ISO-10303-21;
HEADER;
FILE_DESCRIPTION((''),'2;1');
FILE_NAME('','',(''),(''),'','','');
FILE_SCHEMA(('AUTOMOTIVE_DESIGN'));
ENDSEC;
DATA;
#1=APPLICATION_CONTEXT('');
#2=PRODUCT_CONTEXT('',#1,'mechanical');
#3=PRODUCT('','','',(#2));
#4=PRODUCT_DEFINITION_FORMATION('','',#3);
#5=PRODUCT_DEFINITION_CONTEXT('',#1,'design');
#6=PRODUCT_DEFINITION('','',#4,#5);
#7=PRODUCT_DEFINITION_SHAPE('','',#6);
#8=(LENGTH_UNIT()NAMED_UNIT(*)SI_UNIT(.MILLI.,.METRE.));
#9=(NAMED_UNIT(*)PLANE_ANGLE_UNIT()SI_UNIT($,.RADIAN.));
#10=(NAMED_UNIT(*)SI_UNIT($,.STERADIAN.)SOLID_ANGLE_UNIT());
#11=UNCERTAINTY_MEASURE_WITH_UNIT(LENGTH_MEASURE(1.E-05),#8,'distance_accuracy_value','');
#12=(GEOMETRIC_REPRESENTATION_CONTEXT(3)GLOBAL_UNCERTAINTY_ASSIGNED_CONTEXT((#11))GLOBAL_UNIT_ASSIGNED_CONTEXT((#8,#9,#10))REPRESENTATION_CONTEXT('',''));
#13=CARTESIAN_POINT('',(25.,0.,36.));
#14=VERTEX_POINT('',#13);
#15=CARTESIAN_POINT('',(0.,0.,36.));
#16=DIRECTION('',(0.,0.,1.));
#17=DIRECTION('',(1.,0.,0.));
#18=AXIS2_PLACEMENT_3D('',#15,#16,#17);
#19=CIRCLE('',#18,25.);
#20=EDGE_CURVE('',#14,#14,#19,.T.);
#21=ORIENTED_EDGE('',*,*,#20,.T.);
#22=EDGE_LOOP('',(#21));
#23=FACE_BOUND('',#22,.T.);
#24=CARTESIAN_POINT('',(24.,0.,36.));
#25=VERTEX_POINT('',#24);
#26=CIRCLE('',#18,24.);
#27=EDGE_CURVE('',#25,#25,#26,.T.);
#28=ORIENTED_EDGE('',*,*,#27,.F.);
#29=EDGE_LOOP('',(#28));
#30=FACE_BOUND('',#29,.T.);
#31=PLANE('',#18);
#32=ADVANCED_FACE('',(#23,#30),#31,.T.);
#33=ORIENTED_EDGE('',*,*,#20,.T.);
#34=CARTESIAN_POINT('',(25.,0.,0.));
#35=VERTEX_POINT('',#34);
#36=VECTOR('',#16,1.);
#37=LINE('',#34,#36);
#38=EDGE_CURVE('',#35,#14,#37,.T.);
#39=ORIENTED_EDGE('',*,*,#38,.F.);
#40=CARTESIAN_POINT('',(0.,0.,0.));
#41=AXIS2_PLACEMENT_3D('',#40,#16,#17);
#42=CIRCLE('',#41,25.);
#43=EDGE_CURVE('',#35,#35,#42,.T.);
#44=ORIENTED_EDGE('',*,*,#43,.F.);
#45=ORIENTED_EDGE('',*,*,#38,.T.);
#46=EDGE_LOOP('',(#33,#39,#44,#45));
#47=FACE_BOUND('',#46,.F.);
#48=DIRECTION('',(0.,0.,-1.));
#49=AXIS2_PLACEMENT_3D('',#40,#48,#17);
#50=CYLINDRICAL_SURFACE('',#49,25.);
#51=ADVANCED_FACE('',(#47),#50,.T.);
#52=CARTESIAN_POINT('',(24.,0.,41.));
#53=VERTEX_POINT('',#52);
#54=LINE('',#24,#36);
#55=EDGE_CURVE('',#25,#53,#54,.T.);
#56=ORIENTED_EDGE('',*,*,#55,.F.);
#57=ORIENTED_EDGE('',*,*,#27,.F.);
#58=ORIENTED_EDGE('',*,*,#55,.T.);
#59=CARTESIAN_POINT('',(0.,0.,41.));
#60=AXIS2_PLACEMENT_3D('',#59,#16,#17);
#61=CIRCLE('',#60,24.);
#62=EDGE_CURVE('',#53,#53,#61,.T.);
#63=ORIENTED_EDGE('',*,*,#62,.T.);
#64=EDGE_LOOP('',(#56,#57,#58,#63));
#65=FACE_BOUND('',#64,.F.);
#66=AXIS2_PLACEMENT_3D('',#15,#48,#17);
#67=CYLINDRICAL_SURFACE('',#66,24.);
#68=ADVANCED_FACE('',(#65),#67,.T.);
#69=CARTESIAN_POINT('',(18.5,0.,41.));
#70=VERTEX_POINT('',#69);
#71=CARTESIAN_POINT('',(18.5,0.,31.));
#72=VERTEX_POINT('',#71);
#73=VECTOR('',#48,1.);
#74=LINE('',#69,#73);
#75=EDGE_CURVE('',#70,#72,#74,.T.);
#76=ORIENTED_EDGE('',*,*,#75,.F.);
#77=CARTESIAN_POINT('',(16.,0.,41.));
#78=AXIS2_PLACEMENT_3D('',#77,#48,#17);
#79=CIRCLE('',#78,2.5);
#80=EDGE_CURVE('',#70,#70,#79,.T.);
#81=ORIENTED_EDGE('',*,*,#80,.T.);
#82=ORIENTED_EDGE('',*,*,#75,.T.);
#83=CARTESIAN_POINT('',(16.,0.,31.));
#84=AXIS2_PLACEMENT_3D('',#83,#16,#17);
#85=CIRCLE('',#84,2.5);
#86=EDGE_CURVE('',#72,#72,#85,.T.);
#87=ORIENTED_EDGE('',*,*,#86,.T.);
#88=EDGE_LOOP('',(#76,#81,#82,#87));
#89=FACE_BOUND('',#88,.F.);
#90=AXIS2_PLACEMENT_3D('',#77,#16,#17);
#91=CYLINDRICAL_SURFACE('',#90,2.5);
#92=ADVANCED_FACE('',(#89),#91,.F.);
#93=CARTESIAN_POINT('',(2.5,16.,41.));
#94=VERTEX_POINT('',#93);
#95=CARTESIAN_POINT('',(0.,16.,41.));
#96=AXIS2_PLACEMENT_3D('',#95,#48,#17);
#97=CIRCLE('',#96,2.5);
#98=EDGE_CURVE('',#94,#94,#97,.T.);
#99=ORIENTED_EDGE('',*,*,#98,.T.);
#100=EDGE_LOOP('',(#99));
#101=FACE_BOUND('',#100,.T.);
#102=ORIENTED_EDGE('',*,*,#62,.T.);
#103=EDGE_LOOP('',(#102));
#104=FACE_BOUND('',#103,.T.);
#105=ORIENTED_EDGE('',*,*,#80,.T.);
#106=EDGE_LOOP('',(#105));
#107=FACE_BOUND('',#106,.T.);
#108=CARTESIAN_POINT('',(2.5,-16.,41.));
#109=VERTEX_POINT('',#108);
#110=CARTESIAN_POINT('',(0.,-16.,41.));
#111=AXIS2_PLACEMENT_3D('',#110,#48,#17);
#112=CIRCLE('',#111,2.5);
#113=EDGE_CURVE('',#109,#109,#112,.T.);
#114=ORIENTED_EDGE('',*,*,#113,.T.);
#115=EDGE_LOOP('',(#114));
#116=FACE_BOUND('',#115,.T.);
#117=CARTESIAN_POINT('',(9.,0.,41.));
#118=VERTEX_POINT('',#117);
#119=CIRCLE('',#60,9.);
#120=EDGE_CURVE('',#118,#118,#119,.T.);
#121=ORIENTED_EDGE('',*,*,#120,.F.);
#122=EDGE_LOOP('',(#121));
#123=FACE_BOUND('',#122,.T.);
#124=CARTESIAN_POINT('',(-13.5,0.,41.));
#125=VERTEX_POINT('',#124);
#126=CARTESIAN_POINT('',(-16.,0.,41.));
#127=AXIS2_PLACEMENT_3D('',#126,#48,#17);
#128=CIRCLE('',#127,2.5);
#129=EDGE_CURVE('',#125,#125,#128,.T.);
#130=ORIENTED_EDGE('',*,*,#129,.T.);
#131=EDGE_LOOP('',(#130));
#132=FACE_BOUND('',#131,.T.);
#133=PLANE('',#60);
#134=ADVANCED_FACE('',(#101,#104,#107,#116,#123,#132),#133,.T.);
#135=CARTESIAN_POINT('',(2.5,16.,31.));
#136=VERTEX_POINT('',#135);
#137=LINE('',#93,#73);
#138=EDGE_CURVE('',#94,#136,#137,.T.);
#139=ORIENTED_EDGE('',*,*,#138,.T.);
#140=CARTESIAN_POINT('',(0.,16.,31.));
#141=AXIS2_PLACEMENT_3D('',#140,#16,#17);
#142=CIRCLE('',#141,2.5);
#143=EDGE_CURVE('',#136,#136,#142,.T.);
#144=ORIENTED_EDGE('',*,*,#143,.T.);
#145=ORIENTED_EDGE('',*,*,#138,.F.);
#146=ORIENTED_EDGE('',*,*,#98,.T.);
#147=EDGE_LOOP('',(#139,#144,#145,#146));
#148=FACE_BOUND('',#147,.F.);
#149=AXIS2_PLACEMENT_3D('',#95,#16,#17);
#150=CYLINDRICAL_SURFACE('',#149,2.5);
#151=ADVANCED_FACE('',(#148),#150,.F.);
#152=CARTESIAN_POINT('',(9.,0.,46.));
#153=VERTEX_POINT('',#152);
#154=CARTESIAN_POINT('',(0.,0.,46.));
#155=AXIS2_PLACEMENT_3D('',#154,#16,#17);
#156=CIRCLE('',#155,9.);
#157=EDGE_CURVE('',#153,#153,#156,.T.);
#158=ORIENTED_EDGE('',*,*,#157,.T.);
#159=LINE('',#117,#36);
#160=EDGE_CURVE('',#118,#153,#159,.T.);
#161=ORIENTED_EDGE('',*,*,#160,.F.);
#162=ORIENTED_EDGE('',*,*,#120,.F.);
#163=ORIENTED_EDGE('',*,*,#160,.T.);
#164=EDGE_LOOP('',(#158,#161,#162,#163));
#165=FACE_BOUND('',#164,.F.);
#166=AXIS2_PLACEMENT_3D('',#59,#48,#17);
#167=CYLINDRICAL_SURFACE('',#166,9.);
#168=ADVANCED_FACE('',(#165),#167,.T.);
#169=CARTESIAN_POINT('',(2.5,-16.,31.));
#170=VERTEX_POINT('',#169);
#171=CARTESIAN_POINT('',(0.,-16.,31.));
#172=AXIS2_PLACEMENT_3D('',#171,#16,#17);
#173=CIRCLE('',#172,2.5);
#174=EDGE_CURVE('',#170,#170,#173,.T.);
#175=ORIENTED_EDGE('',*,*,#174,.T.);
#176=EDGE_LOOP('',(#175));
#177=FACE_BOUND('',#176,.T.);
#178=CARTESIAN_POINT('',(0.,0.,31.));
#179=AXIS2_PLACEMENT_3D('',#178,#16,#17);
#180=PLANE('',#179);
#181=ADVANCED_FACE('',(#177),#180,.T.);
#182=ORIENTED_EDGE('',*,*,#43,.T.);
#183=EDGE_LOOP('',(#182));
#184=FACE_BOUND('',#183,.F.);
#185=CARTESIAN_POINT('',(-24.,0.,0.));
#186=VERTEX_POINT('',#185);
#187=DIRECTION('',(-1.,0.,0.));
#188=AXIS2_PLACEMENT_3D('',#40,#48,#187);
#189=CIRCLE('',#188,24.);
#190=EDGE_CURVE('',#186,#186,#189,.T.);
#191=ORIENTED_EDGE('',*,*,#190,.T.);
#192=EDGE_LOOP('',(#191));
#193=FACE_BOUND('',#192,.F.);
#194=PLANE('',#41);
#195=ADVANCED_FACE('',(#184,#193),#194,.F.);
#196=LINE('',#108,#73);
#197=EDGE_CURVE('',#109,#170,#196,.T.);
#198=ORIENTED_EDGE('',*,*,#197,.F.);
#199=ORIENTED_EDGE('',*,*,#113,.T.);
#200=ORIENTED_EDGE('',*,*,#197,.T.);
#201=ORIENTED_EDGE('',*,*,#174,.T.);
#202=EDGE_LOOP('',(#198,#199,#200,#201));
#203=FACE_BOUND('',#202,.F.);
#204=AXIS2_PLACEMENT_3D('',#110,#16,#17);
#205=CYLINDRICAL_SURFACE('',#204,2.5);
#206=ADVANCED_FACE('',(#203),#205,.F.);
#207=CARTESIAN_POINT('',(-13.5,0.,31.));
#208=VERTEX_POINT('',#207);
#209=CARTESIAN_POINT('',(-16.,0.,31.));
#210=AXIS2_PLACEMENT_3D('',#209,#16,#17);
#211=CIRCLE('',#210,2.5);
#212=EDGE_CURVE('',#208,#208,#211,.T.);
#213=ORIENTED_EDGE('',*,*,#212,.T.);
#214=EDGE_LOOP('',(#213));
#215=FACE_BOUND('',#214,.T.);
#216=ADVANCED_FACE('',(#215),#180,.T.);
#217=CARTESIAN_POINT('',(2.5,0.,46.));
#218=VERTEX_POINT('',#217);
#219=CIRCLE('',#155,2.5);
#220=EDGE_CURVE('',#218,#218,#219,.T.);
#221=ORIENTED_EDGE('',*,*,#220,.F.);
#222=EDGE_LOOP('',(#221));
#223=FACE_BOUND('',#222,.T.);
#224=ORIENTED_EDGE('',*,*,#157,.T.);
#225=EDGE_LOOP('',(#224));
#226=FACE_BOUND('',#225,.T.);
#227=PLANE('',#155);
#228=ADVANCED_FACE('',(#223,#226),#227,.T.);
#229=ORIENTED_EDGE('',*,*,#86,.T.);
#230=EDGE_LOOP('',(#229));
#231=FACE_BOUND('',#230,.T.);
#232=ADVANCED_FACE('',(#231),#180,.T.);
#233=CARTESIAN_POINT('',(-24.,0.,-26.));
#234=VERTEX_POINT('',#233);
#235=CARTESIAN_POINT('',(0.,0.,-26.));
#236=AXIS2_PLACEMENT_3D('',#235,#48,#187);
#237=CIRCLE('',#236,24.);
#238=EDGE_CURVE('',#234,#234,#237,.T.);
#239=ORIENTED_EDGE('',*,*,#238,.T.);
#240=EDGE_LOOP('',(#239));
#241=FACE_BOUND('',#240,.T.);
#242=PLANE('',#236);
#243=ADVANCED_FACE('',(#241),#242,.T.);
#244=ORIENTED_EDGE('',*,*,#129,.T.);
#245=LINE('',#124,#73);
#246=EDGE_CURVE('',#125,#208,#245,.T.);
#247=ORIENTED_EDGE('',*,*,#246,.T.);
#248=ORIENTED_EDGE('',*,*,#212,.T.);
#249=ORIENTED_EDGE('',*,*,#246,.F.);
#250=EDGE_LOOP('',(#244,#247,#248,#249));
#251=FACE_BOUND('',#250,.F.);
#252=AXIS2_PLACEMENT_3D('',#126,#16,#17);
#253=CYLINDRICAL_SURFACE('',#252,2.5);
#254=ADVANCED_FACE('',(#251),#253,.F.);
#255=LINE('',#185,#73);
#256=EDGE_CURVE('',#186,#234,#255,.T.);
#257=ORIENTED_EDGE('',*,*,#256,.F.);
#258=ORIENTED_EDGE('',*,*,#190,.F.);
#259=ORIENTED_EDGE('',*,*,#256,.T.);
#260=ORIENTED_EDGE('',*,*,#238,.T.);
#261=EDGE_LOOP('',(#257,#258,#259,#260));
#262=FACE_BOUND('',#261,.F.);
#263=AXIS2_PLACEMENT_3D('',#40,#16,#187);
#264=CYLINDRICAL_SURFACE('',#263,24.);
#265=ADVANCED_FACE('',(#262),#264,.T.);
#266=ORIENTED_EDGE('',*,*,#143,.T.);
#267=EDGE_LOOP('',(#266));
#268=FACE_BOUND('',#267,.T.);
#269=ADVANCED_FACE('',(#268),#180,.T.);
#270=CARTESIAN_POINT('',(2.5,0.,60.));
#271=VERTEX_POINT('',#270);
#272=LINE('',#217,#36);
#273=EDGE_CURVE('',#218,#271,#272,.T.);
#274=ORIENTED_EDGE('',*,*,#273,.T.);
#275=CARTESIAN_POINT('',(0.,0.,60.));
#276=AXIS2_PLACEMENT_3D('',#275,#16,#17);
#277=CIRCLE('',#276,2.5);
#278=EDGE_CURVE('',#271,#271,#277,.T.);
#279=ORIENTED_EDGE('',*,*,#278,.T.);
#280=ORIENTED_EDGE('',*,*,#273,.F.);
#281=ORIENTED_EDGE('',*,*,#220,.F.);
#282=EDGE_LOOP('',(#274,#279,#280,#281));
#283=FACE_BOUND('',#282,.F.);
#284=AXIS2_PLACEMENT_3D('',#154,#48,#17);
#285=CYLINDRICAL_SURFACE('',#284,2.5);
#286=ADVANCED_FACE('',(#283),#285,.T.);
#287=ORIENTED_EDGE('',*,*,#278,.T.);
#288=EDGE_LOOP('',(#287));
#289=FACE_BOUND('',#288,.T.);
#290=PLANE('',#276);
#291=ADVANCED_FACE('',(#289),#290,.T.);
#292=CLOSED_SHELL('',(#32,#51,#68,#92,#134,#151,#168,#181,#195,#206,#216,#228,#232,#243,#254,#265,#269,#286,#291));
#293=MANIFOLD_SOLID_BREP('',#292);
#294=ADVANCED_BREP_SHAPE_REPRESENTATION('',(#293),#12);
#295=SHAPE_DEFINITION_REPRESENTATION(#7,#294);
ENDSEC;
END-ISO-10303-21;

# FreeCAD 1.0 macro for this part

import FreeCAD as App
import Part
import Sketcher

V = App.Vector

doc = App.newDocument("Part")
params = doc.addObject("Spreadsheet::Sheet", "Params")
for row, (alias, value) in enumerate([
    ("sketch1_diameter", "50 mm"),
    ("pad1_length", "36 mm"),
    ("sketch2_diameter", "48 mm"),
    ("pad2_length", "5 mm"),
    ("sketch3_diameter", "48 mm"),
    ("pad3_length", "26 mm"),
    ("sketch4_diameter", "18 mm"),
    ("pad4_length", "5 mm"),
    ("sketch5_diameter", "5 mm"),
    ("pad5_length", "14 mm"),
    ("sketch6_diameter", "5 mm"),
    ("pocket1_length", "10 mm"),
], start=1):
    params.set(f"A{row}", alias)
    params.set(f"B{row}", "=" + value)
    params.setAlias(f"B{row}", alias)

body = doc.addObject("PartDesign::Body", "Body")

# Sketch on XY plane
sketch1 = body.newObject("Sketcher::SketchObject", "Sketch")
sketch1.AttachmentSupport = (doc.getObject("XY_Plane"), [""])
sketch1.MapMode = "FlatFace"
sketch1.addGeometry(Part.Circle(V(0, 0, 0), V(0, 0, 1), 25), False)
sketch1.addConstraint([
    Sketcher.Constraint("Coincident", 0, 3, -1, 1),
    Sketcher.Constraint("Diameter", 0, 50.0),
])
sketch1.setExpression("Constraints[1]", "Params.sketch1_diameter")
pad1 = body.newObject("PartDesign::Pad", "Pad")
pad1.Profile = sketch1
pad1.setExpression("Length", "Params.pad1_length")

# Sketch on XY plane
sketch2 = body.newObject("Sketcher::SketchObject", "Sketch001")
sketch2.AttachmentSupport = (doc.getObject("XY_Plane"), [""])
sketch2.MapMode = "FlatFace"
sketch2.AttachmentOffset = App.Placement(V(0, 0, 36), App.Rotation())
sketch2.addGeometry(Part.Circle(V(0, 0, 0), V(0, 0, 1), 24), False)
sketch2.addConstraint([
    Sketcher.Constraint("Coincident", 0, 3, -1, 1),
    Sketcher.Constraint("Diameter", 0, 48.0),
])
sketch2.setExpression("Constraints[1]", "Params.sketch2_diameter")
pad2 = body.newObject("PartDesign::Pad", "Pad001")
pad2.Profile = sketch2
pad2.setExpression("Length", "Params.pad2_length")

# Sketch on XY plane
sketch3 = body.newObject("Sketcher::SketchObject", "Sketch002")
sketch3.AttachmentSupport = (doc.getObject("XY_Plane"), [""])
sketch3.MapMode = "FlatFace"
sketch3.addGeometry(Part.Circle(V(0, 0, 0), V(0, 0, 1), 24), False)
sketch3.addConstraint([
    Sketcher.Constraint("Coincident", 0, 3, -1, 1),
    Sketcher.Constraint("Diameter", 0, 48.0),
])
sketch3.setExpression("Constraints[1]", "Params.sketch3_diameter")
pad3 = body.newObject("PartDesign::Pad", "Pad002")
pad3.Profile = sketch3
pad3.setExpression("Length", "Params.pad3_length")
pad3.Reversed = True

# Sketch on XY plane
sketch4 = body.newObject("Sketcher::SketchObject", "Sketch003")
sketch4.AttachmentSupport = (doc.getObject("XY_Plane"), [""])
sketch4.MapMode = "FlatFace"
sketch4.AttachmentOffset = App.Placement(V(0, 0, 41), App.Rotation())
sketch4.addGeometry(Part.Circle(V(0, 0, 0), V(0, 0, 1), 9), False)
sketch4.addConstraint([
    Sketcher.Constraint("Coincident", 0, 3, -1, 1),
    Sketcher.Constraint("Diameter", 0, 18.0),
])
sketch4.setExpression("Constraints[1]", "Params.sketch4_diameter")
pad4 = body.newObject("PartDesign::Pad", "Pad003")
pad4.Profile = sketch4
pad4.setExpression("Length", "Params.pad4_length")

# Sketch on XY plane
sketch5 = body.newObject("Sketcher::SketchObject", "Sketch004")
sketch5.AttachmentSupport = (doc.getObject("XY_Plane"), [""])
sketch5.MapMode = "FlatFace"
sketch5.AttachmentOffset = App.Placement(V(0, 0, 46), App.Rotation())
sketch5.addGeometry(Part.Circle(V(0, 0, 0), V(0, 0, 1), 2.5), False)
sketch5.addConstraint([
    Sketcher.Constraint("Coincident", 0, 3, -1, 1),
    Sketcher.Constraint("Diameter", 0, 5.0),
])
sketch5.setExpression("Constraints[1]", "Params.sketch5_diameter")
pad5 = body.newObject("PartDesign::Pad", "Pad004")
pad5.Profile = sketch5
pad5.setExpression("Length", "Params.pad5_length")

# Sketch on XY plane
sketch6 = body.newObject("Sketcher::SketchObject", "Sketch005")
sketch6.AttachmentSupport = (doc.getObject("XY_Plane"), [""])
sketch6.MapMode = "FlatFace"
sketch6.AttachmentOffset = App.Placement(V(0, 0, 41), App.Rotation())
sketch6.addGeometry([
    Part.Circle(V(16, 0, 0), V(0, 0, 1), 2.5),
    Part.Circle(V(0, 16, 0), V(0, 0, 1), 2.5),
    Part.Circle(V(0, -16, 0), V(0, 0, 1), 2.5),
    Part.Circle(V(-16, 0, 0), V(0, 0, 1), 2.5),
], False)
sketch6.addConstraint([
    Sketcher.Constraint("Equal", 0, 1),
    Sketcher.Constraint("Equal", 1, 2),
    Sketcher.Constraint("Equal", 2, 3),
    Sketcher.Constraint("Symmetric", 1, 3, 2, 3, -1, 1),
    Sketcher.Constraint("Symmetric", 0, 3, 3, 3, -1, 1),
    Sketcher.Constraint("PointOnObject", 0, 3, -1),
    Sketcher.Constraint("PointOnObject", 1, 3, -2),
    Sketcher.Constraint("Diameter", 0, 5.0),
    Sketcher.Constraint("DistanceY", 2, 3, 1, 3, 32.0),
    Sketcher.Constraint("DistanceX", 3, 3, 0, 3, 32.0),
])
sketch6.setExpression("Constraints[7]", "Params.sketch6_diameter")
pocket1 = body.newObject("PartDesign::Pocket", "Pocket")
pocket1.Profile = sketch6
pocket1.setExpression("Length", "Params.pocket1_length")

doc.recompute()
